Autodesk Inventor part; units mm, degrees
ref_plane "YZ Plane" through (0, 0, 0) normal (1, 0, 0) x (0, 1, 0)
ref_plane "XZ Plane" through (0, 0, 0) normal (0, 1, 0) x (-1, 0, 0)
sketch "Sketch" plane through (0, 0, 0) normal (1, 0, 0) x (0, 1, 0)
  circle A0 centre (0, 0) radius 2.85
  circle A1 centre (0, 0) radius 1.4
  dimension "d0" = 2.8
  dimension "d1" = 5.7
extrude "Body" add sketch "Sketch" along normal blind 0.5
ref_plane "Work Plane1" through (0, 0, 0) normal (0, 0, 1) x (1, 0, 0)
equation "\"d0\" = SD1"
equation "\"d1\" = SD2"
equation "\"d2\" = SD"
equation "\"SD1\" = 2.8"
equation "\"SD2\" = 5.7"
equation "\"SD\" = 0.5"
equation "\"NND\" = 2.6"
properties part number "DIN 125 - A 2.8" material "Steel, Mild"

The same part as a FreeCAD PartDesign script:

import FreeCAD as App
import Part
import Sketcher

V = App.Vector

doc = App.newDocument("Part")
body = doc.addObject("PartDesign::Body", "Body")

sketch1 = body.newObject("Sketcher::SketchObject", "Sketch")
sketch1.AttachmentSupport = (doc.getObject("YZ_Plane"), [""])
sketch1.MapMode = "FlatFace"
sketch1.addGeometry([
    Part.Circle(V(0, 0, 0), V(0, 0, 1), 2.85),
    Part.Circle(V(0, 0, 0), V(0, 0, 1), 1.4),
], False)
sketch1.addConstraint([
    Sketcher.Constraint("Coincident", 0, 3, -1, 1),
    Sketcher.Constraint("Coincident", 1, 3, -1, 1),
    Sketcher.Constraint("Diameter", 0, 5.7),
    Sketcher.Constraint("Diameter", 1, 2.8),
])
pad1 = body.newObject("PartDesign::Pad", "Pad")
pad1.Profile = sketch1
pad1.Length = 0.5

doc.recompute()
